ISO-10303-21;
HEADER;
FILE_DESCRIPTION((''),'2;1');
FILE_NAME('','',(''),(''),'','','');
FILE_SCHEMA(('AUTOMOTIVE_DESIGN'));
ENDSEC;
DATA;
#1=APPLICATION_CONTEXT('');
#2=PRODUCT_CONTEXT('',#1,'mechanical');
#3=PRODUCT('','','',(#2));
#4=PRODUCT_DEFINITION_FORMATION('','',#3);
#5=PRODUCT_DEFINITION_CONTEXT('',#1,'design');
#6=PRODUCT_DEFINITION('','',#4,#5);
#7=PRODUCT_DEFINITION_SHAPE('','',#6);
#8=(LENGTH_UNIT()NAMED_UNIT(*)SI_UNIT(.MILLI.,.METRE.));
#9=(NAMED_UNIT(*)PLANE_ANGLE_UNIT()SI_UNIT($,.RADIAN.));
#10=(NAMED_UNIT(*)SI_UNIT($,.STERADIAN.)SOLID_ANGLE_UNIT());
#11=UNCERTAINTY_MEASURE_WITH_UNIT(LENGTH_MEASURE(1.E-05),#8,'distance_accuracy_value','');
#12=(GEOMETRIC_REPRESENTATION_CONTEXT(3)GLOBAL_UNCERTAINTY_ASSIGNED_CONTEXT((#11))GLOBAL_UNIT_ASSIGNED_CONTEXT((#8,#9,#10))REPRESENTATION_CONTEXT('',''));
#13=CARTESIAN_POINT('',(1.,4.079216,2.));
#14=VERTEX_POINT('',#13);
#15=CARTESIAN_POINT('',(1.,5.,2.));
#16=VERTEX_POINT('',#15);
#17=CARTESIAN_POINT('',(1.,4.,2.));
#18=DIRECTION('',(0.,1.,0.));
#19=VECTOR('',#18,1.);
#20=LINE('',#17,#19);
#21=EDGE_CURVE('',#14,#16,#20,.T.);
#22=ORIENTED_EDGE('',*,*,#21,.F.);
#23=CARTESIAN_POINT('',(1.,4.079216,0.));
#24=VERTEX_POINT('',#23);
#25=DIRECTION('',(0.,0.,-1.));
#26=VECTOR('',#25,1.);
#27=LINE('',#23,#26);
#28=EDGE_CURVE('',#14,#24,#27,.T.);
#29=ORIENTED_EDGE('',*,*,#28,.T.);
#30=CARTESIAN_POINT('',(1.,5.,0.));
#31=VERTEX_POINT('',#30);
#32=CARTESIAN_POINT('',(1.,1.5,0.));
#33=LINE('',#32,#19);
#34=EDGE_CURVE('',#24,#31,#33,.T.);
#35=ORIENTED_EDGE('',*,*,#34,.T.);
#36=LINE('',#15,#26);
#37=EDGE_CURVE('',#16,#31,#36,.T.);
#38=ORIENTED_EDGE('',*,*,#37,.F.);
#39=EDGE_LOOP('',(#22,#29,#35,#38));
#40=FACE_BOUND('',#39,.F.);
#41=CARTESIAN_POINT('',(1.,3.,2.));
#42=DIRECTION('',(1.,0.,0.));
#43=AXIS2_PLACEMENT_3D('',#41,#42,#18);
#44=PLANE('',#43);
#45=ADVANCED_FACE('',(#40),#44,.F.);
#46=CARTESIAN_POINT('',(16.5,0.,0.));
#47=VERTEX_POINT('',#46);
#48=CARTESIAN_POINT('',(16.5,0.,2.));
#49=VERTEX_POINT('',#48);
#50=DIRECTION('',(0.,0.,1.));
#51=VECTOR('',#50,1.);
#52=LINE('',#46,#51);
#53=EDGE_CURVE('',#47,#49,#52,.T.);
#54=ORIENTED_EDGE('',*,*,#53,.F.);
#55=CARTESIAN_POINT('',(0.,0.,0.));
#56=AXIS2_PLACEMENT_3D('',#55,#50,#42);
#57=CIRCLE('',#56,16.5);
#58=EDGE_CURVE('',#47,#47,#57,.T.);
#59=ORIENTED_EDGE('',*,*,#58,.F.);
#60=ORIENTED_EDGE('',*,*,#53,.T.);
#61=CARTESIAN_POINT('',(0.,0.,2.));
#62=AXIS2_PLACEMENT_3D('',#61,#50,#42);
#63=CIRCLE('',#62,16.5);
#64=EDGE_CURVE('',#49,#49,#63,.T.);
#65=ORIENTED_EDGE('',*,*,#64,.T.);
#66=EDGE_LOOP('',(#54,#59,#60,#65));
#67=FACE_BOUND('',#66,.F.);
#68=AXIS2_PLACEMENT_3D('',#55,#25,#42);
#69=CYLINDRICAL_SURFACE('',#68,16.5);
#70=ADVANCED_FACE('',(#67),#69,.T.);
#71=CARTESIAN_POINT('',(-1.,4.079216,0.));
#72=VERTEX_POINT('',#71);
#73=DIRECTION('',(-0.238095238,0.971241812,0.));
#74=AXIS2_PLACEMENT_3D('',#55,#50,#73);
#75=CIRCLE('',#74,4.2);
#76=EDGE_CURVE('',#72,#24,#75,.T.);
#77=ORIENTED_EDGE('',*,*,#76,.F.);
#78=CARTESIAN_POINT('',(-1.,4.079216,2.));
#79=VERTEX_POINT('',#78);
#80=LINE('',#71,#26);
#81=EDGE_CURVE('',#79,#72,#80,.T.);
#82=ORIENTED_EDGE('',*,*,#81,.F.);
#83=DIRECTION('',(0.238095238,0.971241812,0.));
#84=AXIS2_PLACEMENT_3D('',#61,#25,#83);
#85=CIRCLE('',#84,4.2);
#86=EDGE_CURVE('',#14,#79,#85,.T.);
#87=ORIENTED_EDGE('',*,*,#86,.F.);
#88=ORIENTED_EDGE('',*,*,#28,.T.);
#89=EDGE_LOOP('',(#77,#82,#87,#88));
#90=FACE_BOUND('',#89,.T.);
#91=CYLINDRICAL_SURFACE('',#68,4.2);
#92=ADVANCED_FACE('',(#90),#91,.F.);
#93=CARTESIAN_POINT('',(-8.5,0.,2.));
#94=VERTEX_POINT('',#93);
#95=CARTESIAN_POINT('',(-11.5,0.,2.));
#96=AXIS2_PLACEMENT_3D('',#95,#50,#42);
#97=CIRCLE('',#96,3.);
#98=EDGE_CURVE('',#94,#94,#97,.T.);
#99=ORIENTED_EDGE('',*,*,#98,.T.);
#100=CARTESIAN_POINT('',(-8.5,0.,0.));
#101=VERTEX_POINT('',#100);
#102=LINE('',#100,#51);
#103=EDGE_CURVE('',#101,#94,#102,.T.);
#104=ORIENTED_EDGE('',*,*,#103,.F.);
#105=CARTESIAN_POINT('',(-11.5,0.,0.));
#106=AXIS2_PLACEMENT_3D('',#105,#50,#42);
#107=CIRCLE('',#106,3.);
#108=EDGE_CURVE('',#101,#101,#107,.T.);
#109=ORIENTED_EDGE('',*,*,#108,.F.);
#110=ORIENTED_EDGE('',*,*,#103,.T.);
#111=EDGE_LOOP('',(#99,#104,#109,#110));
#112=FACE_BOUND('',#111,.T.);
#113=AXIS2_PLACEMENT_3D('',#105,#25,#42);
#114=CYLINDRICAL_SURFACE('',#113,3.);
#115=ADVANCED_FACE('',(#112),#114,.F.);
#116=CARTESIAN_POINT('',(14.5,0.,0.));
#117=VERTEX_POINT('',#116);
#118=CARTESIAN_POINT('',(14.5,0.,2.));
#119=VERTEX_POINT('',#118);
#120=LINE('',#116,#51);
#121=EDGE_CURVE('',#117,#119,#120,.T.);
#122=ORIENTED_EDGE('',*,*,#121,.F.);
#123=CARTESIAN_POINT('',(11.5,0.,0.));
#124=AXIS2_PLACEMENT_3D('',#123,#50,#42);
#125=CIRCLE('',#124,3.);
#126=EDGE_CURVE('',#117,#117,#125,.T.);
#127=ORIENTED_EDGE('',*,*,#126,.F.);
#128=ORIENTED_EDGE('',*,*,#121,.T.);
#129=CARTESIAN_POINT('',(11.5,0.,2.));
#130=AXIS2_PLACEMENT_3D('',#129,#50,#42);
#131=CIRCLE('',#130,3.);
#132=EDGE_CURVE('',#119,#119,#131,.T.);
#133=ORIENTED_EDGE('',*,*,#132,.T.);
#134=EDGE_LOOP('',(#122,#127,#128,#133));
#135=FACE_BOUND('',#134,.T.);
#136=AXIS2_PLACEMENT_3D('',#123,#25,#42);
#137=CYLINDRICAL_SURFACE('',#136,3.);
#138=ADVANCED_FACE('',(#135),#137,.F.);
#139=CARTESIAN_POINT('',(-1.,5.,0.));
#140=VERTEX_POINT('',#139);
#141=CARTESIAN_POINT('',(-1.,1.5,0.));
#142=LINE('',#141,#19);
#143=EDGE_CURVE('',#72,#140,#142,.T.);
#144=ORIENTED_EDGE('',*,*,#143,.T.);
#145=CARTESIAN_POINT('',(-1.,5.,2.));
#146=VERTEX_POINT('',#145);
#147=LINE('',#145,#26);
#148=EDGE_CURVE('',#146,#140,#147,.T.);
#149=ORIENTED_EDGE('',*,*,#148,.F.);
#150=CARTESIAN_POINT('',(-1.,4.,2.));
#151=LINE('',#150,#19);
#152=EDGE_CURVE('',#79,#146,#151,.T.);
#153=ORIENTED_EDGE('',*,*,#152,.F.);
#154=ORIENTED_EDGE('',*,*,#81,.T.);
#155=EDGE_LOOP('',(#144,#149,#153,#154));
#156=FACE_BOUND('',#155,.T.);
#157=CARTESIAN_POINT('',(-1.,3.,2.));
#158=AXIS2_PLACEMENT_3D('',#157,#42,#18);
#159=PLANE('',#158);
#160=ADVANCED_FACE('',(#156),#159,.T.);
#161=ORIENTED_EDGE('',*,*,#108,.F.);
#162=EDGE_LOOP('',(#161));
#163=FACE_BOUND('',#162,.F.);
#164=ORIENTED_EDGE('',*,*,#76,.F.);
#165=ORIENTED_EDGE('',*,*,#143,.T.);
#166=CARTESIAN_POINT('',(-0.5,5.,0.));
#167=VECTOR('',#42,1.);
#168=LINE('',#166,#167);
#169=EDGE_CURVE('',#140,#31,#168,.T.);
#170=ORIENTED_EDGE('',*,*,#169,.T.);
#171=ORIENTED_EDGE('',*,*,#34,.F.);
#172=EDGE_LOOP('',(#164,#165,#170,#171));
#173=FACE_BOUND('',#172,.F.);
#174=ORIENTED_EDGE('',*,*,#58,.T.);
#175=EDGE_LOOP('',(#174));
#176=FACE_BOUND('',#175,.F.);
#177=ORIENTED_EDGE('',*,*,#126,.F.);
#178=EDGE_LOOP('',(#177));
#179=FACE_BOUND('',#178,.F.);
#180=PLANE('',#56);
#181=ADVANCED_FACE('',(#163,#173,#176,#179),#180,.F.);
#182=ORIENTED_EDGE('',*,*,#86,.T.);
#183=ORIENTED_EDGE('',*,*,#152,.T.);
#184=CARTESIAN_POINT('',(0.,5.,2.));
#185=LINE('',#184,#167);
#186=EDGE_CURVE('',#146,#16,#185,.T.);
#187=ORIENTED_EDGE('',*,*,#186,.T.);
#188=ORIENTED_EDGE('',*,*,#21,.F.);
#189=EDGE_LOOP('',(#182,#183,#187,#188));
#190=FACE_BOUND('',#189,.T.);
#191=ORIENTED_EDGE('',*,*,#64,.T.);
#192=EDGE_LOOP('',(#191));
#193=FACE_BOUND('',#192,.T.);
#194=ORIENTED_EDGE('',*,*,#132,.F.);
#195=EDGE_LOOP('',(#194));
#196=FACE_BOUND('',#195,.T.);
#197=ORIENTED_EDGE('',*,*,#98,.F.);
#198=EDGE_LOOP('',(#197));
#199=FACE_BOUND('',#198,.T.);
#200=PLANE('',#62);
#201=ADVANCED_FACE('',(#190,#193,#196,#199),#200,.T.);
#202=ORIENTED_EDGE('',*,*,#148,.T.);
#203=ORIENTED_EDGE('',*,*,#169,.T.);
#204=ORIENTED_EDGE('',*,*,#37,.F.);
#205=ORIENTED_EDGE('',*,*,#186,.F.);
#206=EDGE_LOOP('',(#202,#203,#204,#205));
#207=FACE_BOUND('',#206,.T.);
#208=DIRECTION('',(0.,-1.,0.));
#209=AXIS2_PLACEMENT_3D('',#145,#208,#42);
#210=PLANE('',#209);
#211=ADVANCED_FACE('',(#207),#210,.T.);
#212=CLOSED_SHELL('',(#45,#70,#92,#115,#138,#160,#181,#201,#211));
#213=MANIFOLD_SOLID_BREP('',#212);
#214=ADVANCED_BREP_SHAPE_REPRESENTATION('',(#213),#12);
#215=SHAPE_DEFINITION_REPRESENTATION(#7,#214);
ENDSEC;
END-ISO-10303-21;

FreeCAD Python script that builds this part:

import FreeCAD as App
import Part
import Sketcher

V = App.Vector
Q = App.Units.Quantity

doc = App.newDocument("Part")
params = doc.addObject("Spreadsheet::Sheet", "Params")
for row, (alias, value) in enumerate([
    ("sketch1_diameter", "33 mm"),
    ("sketch1_diameter2", "6 mm"),
    ("sketch1_diameter3", "8.4 mm"),
    ("pad1_length", "2 mm"),
    ("sketch2_width", "2 mm"),
], start=1):
    params.set(f"A{row}", alias)
    params.set(f"B{row}", "=" + value)
    params.setAlias(f"B{row}", alias)

body = doc.addObject("PartDesign::Body", "Body")

# Sketch on XY plane
sketch1 = body.newObject("Sketcher::SketchObject", "Sketch")
sketch1.AttachmentSupport = (doc.getObject("XY_Plane"), [""])
sketch1.MapMode = "FlatFace"
sketch1.addGeometry([
    Part.Circle(V(0, 0, 0), V(0, 0, 1), 16.5),
    Part.Circle(V(-11.5, 0, 0), V(0, 0, 1), 3),
    Part.Circle(V(0, 0, 0), V(0, 0, 1), 4.2),
    Part.Circle(V(11.5, 0, 0), V(0, 0, 1), 3),
], False)
sketch1.addConstraint([
    Sketcher.Constraint("Coincident", 0, 3, -1, 1),
    Sketcher.Constraint("Coincident", 2, 3, -1, 1),
    Sketcher.Constraint("Equal", 1, 3),
    Sketcher.Constraint("Symmetric", 1, 3, 3, 3, -1, 1),
    Sketcher.Constraint("PointOnObject", 1, 3, -1),
    Sketcher.Constraint("Diameter", 0, Q("33 mm")),
    Sketcher.Constraint("Diameter", 1, Q("6 mm")),
    Sketcher.Constraint("Diameter", 2, Q("8.4 mm")),
    Sketcher.Constraint("DistanceX", 1, 3, 3, 3, Q("23 mm")),
])
sketch1.setExpression("Constraints[5]", "Params.sketch1_diameter")
sketch1.setExpression("Constraints[6]", "Params.sketch1_diameter2")
sketch1.setExpression("Constraints[7]", "Params.sketch1_diameter3")
pad1 = body.newObject("PartDesign::Pad", "Pad")
pad1.Profile = sketch1
pad1.setExpression("Length", "Params.pad1_length")

# Sketch on XY plane
sketch2 = body.newObject("Sketcher::SketchObject", "Sketch001")
sketch2.AttachmentSupport = (doc.getObject("XY_Plane"), [""])
sketch2.MapMode = "FlatFace"
sketch2.AttachmentOffset = App.Placement(V(0, 0, 2), App.Rotation())
sketch2.addGeometry([
    Part.LineSegment(V(-1, 5, 0), V(-1, 3, 0)),
    Part.LineSegment(V(-1, 3, 0), V(1, 3, 0)),
    Part.LineSegment(V(1, 3, 0), V(1, 5, 0)),
    Part.LineSegment(V(1, 5, 0), V(-1, 5, 0)),
], False)
sketch2.addConstraint([
    Sketcher.Constraint("Coincident", 0, 2, 1, 1),
    Sketcher.Constraint("Coincident", 1, 2, 2, 1),
    Sketcher.Constraint("Coincident", 2, 2, 3, 1),
    Sketcher.Constraint("Coincident", 3, 2, 0, 1),
    Sketcher.Constraint("Vertical", 0),
    Sketcher.Constraint("Horizontal", 1),
    Sketcher.Constraint("Vertical", 2),
    Sketcher.Constraint("Horizontal", 3),
    Sketcher.Constraint("Equal", 3, 0),
    Sketcher.Constraint("DistanceX", 1, 1, 1, 2, Q("2 mm")),
    Sketcher.Constraint("DistanceX", 0, 2, -1, 1, Q("1 mm")),
    Sketcher.Constraint("DistanceY", -1, 1, 0, 2, Q("3 mm")),
])
sketch2.setExpression("Constraints[9]", "Params.sketch2_width")
pocket1 = body.newObject("PartDesign::Pocket", "Pocket")
pocket1.Profile = sketch2
pocket1.Type = "ThroughAll"

doc.recompute()
